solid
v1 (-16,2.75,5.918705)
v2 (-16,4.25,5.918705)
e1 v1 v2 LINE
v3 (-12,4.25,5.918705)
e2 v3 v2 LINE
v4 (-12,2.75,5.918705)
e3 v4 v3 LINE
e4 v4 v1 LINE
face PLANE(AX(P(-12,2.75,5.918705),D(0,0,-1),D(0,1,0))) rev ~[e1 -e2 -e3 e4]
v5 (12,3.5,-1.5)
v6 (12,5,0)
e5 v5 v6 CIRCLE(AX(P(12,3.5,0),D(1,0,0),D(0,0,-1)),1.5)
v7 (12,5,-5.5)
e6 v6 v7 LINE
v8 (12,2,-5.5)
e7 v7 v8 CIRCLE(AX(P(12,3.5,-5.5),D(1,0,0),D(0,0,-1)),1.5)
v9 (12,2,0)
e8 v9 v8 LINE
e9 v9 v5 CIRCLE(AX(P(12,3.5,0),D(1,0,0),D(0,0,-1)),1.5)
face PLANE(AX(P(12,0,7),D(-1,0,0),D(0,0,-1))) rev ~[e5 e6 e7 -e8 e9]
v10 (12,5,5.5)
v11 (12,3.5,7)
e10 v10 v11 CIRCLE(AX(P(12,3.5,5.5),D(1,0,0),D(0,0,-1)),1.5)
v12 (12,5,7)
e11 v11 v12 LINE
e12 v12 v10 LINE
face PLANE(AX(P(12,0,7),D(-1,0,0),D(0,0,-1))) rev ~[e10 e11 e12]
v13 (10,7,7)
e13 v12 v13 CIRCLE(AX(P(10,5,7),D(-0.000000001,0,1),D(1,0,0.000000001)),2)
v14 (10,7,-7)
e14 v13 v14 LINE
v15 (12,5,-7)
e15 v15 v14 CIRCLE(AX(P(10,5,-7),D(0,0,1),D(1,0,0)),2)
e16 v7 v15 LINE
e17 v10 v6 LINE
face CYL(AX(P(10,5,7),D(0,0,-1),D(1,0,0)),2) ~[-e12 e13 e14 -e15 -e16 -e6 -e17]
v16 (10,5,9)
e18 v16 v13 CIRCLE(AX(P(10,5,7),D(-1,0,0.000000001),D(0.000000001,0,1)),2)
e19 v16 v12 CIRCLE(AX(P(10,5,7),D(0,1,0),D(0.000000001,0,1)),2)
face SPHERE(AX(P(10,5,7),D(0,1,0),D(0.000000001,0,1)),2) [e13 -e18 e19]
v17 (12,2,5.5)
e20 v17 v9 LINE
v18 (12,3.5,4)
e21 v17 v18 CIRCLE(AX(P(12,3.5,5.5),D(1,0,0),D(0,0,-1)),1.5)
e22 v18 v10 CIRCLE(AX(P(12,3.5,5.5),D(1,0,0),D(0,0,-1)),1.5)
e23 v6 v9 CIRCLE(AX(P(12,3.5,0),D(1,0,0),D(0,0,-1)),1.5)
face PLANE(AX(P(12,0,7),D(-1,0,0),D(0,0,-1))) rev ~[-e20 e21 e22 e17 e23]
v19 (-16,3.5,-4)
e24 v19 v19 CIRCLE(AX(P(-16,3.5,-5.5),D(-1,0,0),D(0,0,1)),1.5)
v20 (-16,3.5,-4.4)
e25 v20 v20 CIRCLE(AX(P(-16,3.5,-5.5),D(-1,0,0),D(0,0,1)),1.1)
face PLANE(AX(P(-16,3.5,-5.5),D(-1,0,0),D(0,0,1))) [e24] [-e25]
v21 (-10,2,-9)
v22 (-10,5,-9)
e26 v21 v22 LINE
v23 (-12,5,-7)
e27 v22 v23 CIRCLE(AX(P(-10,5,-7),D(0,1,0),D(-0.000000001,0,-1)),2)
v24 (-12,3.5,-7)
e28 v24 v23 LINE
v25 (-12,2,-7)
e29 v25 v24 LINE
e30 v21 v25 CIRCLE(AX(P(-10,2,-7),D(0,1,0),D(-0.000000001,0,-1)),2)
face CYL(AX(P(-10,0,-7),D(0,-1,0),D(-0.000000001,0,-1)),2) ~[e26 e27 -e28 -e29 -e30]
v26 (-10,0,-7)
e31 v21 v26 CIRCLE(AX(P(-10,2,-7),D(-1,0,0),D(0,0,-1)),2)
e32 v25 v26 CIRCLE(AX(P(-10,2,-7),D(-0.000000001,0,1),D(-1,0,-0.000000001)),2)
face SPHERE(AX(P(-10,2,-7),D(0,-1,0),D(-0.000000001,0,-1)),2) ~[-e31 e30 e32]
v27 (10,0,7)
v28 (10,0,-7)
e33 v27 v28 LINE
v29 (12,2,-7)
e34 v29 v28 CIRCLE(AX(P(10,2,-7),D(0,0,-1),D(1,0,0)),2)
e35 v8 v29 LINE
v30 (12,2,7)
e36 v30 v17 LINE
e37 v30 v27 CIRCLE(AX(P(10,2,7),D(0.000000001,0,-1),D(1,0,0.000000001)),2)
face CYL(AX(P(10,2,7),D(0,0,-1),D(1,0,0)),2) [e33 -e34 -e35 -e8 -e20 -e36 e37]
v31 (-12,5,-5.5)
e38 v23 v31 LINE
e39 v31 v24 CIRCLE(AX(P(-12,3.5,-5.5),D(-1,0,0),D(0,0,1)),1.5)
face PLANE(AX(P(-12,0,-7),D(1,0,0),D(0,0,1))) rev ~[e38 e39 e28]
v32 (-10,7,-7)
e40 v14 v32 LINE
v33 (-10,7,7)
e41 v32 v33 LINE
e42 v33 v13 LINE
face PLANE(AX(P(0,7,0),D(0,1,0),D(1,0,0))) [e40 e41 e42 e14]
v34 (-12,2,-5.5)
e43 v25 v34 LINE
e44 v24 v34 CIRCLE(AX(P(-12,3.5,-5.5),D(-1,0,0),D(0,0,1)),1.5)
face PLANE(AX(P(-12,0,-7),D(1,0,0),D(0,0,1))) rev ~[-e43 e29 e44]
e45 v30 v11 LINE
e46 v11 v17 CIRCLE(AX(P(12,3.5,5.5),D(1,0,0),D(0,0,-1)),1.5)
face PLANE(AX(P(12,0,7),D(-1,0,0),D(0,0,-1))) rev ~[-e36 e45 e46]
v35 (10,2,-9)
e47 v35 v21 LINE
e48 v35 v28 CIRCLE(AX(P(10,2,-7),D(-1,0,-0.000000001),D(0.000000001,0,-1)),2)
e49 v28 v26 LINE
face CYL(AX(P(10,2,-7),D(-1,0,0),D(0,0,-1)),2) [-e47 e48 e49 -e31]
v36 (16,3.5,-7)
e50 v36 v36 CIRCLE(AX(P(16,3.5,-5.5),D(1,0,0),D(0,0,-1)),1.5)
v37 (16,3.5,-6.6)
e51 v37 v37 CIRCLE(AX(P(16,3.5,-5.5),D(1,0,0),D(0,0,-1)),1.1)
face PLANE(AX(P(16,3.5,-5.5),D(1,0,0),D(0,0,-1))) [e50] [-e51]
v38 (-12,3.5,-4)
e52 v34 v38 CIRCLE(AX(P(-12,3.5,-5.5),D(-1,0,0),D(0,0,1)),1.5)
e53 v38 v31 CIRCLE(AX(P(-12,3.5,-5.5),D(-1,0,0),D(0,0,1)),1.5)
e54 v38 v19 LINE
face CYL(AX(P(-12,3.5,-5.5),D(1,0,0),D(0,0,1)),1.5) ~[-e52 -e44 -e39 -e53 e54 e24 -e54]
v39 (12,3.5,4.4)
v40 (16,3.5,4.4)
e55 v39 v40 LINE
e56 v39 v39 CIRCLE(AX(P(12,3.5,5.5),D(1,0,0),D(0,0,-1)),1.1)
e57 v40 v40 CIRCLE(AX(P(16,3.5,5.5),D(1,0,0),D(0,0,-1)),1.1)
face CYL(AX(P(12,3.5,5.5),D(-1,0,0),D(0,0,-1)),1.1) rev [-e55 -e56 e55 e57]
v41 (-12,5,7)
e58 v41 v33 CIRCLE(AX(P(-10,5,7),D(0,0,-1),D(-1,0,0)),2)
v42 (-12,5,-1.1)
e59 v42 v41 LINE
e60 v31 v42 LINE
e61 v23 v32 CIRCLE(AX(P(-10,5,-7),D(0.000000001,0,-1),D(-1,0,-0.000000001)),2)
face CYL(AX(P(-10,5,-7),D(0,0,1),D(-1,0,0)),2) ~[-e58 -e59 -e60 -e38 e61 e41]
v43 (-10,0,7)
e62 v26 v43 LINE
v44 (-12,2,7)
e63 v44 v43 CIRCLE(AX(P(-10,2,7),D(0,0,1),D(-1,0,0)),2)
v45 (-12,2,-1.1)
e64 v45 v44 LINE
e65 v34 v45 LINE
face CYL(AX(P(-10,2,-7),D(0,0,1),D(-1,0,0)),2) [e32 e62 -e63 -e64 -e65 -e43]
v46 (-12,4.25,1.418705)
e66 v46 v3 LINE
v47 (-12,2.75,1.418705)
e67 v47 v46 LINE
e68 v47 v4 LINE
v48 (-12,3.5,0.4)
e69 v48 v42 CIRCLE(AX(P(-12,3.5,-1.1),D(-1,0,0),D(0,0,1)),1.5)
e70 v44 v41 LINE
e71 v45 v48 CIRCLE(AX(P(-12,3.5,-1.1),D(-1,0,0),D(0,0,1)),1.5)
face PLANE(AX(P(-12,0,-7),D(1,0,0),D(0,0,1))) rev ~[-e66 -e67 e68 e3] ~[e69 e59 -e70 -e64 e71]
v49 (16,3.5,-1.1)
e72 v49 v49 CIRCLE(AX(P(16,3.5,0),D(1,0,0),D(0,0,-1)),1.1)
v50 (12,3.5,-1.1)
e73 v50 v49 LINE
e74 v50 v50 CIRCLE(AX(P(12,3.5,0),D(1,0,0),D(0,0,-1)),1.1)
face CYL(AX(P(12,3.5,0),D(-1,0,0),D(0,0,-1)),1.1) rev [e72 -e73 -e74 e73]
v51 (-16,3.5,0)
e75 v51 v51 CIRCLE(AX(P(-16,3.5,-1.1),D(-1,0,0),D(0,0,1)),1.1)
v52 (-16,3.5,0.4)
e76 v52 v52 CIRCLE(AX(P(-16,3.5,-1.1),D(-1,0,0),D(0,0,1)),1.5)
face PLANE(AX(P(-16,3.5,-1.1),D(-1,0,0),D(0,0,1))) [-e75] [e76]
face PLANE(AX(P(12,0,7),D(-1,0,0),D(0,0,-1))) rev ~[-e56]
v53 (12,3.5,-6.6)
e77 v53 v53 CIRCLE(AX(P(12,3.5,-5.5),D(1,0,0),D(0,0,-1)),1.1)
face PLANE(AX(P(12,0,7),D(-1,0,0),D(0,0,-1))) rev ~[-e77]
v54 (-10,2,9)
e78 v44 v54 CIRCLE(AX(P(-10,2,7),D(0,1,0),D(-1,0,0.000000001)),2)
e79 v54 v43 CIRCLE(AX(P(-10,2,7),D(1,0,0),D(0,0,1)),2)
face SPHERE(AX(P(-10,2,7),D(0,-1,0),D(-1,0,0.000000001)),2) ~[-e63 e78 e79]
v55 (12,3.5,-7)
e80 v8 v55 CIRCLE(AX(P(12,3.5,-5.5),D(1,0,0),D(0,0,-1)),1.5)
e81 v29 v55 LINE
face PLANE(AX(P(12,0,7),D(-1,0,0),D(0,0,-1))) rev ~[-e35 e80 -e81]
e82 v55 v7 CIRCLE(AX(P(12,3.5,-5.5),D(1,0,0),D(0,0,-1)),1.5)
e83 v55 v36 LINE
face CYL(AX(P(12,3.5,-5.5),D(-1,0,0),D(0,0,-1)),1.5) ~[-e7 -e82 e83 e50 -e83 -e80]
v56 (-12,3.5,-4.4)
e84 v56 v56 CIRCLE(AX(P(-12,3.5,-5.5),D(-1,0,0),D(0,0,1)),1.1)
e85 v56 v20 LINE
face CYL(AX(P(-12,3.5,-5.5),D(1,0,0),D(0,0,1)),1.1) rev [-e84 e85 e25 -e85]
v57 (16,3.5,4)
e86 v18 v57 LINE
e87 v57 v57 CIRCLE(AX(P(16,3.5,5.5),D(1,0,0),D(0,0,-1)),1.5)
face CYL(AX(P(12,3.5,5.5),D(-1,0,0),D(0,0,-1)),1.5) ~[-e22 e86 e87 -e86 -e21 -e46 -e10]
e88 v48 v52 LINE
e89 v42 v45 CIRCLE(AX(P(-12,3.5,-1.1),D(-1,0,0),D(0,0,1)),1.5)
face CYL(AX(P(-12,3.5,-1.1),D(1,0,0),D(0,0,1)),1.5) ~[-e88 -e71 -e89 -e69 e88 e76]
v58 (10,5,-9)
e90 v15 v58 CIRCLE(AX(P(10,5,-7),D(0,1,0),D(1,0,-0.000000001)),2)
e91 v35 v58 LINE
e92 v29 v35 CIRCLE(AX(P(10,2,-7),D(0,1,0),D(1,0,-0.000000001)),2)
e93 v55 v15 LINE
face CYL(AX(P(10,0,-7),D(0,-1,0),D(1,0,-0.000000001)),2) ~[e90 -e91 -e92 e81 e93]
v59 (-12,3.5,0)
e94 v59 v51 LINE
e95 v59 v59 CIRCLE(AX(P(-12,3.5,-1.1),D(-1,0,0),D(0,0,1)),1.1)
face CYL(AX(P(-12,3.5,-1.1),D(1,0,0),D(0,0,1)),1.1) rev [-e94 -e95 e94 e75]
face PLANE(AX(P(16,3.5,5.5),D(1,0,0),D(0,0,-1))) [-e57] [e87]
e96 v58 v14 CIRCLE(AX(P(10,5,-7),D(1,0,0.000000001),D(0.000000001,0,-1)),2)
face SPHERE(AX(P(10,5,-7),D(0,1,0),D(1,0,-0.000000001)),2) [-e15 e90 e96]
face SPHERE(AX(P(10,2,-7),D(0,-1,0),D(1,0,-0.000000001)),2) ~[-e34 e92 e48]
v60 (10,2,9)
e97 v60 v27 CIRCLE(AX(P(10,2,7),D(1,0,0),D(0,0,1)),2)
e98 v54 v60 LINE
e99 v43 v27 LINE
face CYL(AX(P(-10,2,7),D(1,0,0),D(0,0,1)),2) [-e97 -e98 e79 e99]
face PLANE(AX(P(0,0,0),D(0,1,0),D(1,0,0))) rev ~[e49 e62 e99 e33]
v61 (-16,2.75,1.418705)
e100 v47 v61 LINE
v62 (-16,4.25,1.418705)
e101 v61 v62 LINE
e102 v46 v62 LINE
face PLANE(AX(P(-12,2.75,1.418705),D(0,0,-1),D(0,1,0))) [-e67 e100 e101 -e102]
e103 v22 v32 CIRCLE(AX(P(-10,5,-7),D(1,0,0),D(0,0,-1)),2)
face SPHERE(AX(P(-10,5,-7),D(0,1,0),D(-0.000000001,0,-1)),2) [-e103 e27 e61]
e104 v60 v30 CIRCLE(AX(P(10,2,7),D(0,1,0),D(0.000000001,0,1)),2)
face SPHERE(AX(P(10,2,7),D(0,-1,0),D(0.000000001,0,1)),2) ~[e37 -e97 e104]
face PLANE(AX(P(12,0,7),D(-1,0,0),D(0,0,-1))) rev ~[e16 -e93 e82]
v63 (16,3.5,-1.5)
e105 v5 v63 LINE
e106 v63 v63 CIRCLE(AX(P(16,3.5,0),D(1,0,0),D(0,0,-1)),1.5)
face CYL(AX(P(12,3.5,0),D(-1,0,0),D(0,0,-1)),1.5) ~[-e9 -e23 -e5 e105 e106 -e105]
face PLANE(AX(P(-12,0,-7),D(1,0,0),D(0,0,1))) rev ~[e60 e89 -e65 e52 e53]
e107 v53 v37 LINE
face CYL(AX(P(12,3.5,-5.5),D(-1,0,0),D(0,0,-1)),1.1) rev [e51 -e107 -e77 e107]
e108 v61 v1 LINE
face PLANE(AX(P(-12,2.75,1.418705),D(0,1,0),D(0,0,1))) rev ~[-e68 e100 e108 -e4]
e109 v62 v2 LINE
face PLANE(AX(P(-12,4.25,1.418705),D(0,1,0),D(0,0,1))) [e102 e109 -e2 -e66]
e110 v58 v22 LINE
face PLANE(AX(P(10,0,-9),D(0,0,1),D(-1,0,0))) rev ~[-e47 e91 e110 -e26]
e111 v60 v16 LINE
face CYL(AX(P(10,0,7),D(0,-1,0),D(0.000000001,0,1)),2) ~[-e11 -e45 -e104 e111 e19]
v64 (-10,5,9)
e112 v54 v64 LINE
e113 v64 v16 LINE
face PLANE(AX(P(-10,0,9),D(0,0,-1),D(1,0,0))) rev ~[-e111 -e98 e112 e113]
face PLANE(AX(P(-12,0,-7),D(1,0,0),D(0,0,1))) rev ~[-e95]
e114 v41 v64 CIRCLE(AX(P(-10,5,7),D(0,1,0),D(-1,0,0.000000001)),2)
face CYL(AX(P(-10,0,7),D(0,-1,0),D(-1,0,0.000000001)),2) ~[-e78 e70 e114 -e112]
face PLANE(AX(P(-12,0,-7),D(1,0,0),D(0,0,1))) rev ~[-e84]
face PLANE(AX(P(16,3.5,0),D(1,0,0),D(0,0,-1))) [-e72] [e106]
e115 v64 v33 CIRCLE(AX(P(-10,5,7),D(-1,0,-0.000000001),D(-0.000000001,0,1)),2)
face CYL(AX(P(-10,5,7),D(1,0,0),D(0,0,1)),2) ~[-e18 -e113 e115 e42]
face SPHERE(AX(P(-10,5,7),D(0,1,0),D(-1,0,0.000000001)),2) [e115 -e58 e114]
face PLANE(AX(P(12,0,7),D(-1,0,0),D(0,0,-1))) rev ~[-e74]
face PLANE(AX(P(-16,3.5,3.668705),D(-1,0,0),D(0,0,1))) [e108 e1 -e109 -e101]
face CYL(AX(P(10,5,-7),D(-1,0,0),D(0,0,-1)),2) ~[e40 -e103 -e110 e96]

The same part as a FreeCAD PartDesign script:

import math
import FreeCAD as App
import Part
import Sketcher
Q = App.Units.Quantity


def edges_at(feature, points):
    """Names of the edges that pass closest to the given points."""
    edges = feature.Shape.Edges
    near = lambda p: min(range(len(edges)), key=lambda i: edges[i].distToShape(Part.Vertex(*p))[0])
    return sorted({f"Edge{near(p) + 1}" for p in points})

doc = App.newDocument("Part")
body = doc.addObject("PartDesign::Body", "Body")

sketch1 = body.newObject("Sketcher::SketchObject", "Sketch")
sketch1.AttachmentSupport = (doc.getObject("XZ_Plane"), [""])
sketch1.MapMode = "FlatFace"
sketch1.addGeometry([
    Part.LineSegment(App.Vector(-10, 9, 0), App.Vector(10, 9, 0)),
    Part.ArcOfCircle(Part.Circle(App.Vector(10, 7, 0), App.Vector(0, 0, 1), 2), math.radians(0), math.radians(90)),
    Part.LineSegment(App.Vector(12, 7, 0), App.Vector(12, -7, 0)),
    Part.ArcOfCircle(Part.Circle(App.Vector(10, -7, 0), App.Vector(0, 0, 1), 2), math.radians(-90), math.radians(0)),
    Part.LineSegment(App.Vector(10, -9, 0), App.Vector(-10, -9, 0)),
    Part.ArcOfCircle(Part.Circle(App.Vector(-10, -7, 0), App.Vector(0, 0, 1), 2), math.radians(-180), math.radians(-90)),
    Part.LineSegment(App.Vector(-12, -7, 0), App.Vector(-12, 7, 0)),
    Part.ArcOfCircle(Part.Circle(App.Vector(-10, 7, 0), App.Vector(0, 0, 1), 2), math.radians(90), math.radians(180)),
], False)
sketch1.addConstraint([
    Sketcher.Constraint("Tangent", 0, 2, 1, 2),
    Sketcher.Constraint("Tangent", 1, 1, 2, 1),
    Sketcher.Constraint("Tangent", 2, 2, 3, 2),
    Sketcher.Constraint("Tangent", 3, 1, 4, 1),
    Sketcher.Constraint("Tangent", 4, 2, 5, 2),
    Sketcher.Constraint("Tangent", 5, 1, 6, 1),
    Sketcher.Constraint("Tangent", 6, 2, 7, 2),
    Sketcher.Constraint("Tangent", 7, 1, 0, 1),
    Sketcher.Constraint("Horizontal", 0),
    Sketcher.Constraint("Vertical", 2),
    Sketcher.Constraint("Horizontal", 4),
    Sketcher.Constraint("Vertical", 6),
    Sketcher.Constraint("Equal", 1, 3),
    Sketcher.Constraint("Equal", 3, 5),
    Sketcher.Constraint("Equal", 5, 7),
    Sketcher.Constraint("Symmetric", 1, 3, 5, 3, -1, 1),
    Sketcher.Constraint("Radius", 1, Q("2 mm")),
    Sketcher.Constraint("DistanceX", 0, 1, 0, 2, Q("20 mm")),
    Sketcher.Constraint("DistanceY", 2, 2, 2, 1, Q("14 mm")),
])
pad1 = body.newObject("PartDesign::Pad", "Pad")
pad1.Profile = sketch1
pad1.Length = 7
pad1.Reversed = True
doc.recompute()

fillet = body.newObject("PartDesign::Fillet", "Fillet")
fillet.Base = (pad1, edges_at(pad1, [
    (11.414, 7, 8.414),
    (0, 0, 9),
    (-11.414, 0, 8.414),
    (12, 7, 0),
    (11.414, 7, -8.414),
    (0, 7, -9),
    (-11.414, 7, -8.414),
    (-12, 7, 0),
    (-11.414, 7, 8.414),
    (0, 7, 9),
    (-12, 0, 0),
    (-11.414, 0, -8.414),
    (0, 0, -9),
    (11.414, 0, -8.414),
    (12, 0, 0),
    (11.414, 0, 8.414),
]))
fillet.Radius = 2

sketch2 = body.newObject("Sketcher::SketchObject", "Sketch001")
sketch2.AttachmentSupport = (doc.getObject("YZ_Plane"), [""])
sketch2.MapMode = "FlatFace"
sketch2.AttachmentOffset = App.Placement(App.Vector(0, 0, 12), App.Rotation())
sketch2.addGeometry([
    Part.Circle(App.Vector(3.5, -5.5, 0), App.Vector(0, 0, 1), 1.5),
    Part.Circle(App.Vector(3.5, -5.5, 0), App.Vector(0, 0, 1), 1.1),
    Part.Circle(App.Vector(3.5, 0, 0), App.Vector(0, 0, 1), 1.5),
    Part.Circle(App.Vector(3.5, 0, 0), App.Vector(0, 0, 1), 1.1),
    Part.Circle(App.Vector(3.5, 5.5, 0), App.Vector(0, 0, 1), 1.5),
    Part.Circle(App.Vector(3.5, 5.5, 0), App.Vector(0, 0, 1), 1.1),
], False)
sketch2.addConstraint([
    Sketcher.Constraint("Coincident", 1, 3, 0, 3),
    Sketcher.Constraint("Coincident", 3, 3, 2, 3),
    Sketcher.Constraint("Coincident", 5, 3, 4, 3),
    Sketcher.Constraint("Equal", 0, 2),
    Sketcher.Constraint("Equal", 1, 3),
    Sketcher.Constraint("Equal", 2, 4),
    Sketcher.Constraint("Equal", 3, 5),
    Sketcher.Constraint("Symmetric", 0, 3, 4, 3, -1),
    Sketcher.Constraint("PointOnObject", 2, 3, -1),
    Sketcher.Constraint("Vertical", 1, 3, 2, 3),
    Sketcher.Constraint("Diameter", 0, Q("3 mm")),
    Sketcher.Constraint("Diameter", 1, Q("2.2 mm")),
    Sketcher.Constraint("DistanceY", 0, 3, 4, 3, Q("11 mm")),
    Sketcher.Constraint("DistanceX", -1, 1, 0, 3, Q("3.5 mm")),
])
pad2 = body.newObject("PartDesign::Pad", "Pad001")
pad2.Profile = sketch2
pad2.Length = 4

sketch3 = body.newObject("Sketcher::SketchObject", "Sketch002")
sketch3.AttachmentSupport = (doc.getObject("YZ_Plane"), [""])
sketch3.MapMode = "FlatFace"
sketch3.AttachmentOffset = App.Placement(App.Vector(0, 0, -12), App.Rotation())
sketch3.addGeometry([
    Part.Circle(App.Vector(3.5, -5.5, 0), App.Vector(0, 0, 1), 1.5),
    Part.Circle(App.Vector(3.5, -5.5, 0), App.Vector(0, 0, 1), 1.1),
    Part.Circle(App.Vector(3.5, -1.1, 0), App.Vector(0, 0, 1), 1.5),
    Part.Circle(App.Vector(3.5, -1.1, 0), App.Vector(0, 0, 1), 1.1),
    Part.LineSegment(App.Vector(4.2, 1.4, 0), App.Vector(2.8, 1.4, 0)),
    Part.LineSegment(App.Vector(2.8, 1.4, 0), App.Vector(2.8, 5.9, 0)),
    Part.LineSegment(App.Vector(2.8, 5.9, 0), App.Vector(4.2, 5.9, 0)),
    Part.LineSegment(App.Vector(4.2, 5.9, 0), App.Vector(4.2, 1.4, 0)),
], False)
sketch3.addConstraint([
    Sketcher.Constraint("Coincident", 4, 2, 5, 1),
    Sketcher.Constraint("Coincident", 5, 2, 6, 1),
    Sketcher.Constraint("Coincident", 6, 2, 7, 1),
    Sketcher.Constraint("Coincident", 7, 2, 4, 1),
    Sketcher.Constraint("Horizontal", 4),
    Sketcher.Constraint("Vertical", 5),
    Sketcher.Constraint("Horizontal", 6),
    Sketcher.Constraint("Vertical", 7),
    Sketcher.Constraint("Coincident", 1, 3, 0, 3),
    Sketcher.Constraint("Coincident", 3, 3, 2, 3),
    Sketcher.Constraint("Equal", 0, 2),
    Sketcher.Constraint("Equal", 1, 3),
    Sketcher.Constraint("Vertical", 1, 3, 2, 3),
    Sketcher.Constraint("Diameter", 0, Q("3 mm")),
    Sketcher.Constraint("Diameter", 1, Q("2.2 mm")),
    Sketcher.Constraint("DistanceX", 4, 2, 4, 1, Q("1.5 mm")),
    Sketcher.Constraint("DistanceY", 5, 1, 5, 2, Q("4.5 mm")),
    Sketcher.Constraint("DistanceX", -1, 1, 0, 3, Q("3.5 mm")),
    Sketcher.Constraint("DistanceY", 0, 3, -1, 1, Q("5.5 mm")),
    Sketcher.Constraint("DistanceY", 2, 3, -1, 1, Q("1.1 mm")),
    Sketcher.Constraint("DistanceX", -1, 1, 4, 2, Q("2.75 mm")),
    Sketcher.Constraint("DistanceY", -1, 1, 4, 2, Q("1.418705 mm")),
])
pad3 = body.newObject("PartDesign::Pad", "Pad002")
pad3.Profile = sketch3
pad3.Length = 4
pad3.Reversed = True

doc.recompute()
